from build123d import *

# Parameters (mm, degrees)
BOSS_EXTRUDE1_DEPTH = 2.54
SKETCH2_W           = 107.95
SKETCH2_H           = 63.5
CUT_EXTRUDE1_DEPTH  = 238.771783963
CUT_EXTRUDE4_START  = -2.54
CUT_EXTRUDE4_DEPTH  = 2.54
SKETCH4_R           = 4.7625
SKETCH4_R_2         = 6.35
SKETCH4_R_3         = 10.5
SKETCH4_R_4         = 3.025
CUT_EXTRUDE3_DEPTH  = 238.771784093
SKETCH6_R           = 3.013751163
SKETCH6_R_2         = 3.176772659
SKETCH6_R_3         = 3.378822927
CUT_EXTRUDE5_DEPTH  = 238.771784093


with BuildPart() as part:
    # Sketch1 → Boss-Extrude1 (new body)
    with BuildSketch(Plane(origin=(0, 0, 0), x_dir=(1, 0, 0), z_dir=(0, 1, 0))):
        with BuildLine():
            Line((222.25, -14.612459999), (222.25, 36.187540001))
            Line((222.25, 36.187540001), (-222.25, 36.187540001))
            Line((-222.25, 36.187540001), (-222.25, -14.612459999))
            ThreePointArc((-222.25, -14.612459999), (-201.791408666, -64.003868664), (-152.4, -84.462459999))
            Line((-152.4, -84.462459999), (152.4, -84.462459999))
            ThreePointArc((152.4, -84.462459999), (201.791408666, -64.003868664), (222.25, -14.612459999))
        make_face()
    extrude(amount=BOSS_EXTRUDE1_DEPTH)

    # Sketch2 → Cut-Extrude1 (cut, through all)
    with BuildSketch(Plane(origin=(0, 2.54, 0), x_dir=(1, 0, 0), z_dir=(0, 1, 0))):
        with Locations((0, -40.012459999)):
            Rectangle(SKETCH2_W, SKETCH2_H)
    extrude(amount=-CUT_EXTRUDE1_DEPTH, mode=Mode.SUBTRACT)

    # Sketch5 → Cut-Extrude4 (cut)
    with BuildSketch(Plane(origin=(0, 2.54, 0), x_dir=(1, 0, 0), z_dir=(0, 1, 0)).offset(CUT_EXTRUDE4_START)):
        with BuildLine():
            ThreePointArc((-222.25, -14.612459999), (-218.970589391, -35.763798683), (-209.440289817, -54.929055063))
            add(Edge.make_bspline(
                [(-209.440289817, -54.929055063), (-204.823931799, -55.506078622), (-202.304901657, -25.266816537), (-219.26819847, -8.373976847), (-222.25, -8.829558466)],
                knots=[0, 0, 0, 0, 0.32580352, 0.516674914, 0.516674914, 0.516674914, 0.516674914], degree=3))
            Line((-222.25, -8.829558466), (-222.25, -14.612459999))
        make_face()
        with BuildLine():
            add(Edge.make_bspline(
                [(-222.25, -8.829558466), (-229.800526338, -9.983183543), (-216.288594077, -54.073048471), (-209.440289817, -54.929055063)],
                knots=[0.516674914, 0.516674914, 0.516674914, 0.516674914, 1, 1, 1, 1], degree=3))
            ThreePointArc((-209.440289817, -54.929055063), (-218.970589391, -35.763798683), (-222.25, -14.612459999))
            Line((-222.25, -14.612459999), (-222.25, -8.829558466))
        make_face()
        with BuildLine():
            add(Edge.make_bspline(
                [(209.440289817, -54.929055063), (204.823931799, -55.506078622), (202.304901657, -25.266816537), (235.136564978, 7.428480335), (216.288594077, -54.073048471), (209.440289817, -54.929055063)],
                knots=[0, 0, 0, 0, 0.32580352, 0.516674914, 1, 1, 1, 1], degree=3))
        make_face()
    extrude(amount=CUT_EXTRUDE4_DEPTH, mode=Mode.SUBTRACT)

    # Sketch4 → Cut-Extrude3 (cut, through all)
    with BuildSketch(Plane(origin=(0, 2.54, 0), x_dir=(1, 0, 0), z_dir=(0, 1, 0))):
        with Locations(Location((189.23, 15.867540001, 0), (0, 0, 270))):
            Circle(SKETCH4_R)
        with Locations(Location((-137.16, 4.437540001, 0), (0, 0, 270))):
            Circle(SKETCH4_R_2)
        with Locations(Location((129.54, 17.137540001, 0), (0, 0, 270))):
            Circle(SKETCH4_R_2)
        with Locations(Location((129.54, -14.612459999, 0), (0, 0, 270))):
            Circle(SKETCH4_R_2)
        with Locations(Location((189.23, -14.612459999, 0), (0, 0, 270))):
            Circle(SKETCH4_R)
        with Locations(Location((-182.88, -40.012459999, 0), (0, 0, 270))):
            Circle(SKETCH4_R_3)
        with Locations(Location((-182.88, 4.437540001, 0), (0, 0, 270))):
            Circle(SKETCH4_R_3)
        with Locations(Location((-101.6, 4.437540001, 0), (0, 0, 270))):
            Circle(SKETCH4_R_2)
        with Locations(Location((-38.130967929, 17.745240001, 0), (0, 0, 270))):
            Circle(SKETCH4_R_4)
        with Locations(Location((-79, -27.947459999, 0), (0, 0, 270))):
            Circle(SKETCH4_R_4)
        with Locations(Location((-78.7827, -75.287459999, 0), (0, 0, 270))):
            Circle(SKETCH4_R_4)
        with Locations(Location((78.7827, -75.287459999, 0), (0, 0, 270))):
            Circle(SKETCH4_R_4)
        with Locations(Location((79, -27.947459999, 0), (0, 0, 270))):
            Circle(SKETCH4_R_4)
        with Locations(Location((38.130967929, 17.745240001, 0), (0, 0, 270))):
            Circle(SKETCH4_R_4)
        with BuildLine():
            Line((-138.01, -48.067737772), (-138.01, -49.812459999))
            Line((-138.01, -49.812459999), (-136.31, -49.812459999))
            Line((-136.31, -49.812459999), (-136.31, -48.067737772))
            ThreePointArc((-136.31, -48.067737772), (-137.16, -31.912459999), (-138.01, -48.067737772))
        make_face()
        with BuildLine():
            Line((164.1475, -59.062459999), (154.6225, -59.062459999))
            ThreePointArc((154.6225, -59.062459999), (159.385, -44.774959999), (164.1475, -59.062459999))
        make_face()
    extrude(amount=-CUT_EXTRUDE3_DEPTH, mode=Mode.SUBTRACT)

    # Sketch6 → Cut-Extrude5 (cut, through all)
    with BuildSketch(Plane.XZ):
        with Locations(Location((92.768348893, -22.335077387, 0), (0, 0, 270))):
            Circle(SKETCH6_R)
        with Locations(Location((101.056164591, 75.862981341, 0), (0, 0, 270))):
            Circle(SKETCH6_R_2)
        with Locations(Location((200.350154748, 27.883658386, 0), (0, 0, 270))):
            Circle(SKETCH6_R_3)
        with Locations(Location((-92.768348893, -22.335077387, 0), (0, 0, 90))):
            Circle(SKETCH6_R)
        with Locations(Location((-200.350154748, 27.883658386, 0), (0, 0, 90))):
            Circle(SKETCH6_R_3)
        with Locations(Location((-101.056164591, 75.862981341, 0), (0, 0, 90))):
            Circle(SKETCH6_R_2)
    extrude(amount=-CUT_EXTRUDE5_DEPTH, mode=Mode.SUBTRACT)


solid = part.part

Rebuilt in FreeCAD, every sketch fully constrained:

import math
import FreeCAD as App
import Part
import Sketcher
Q = App.Units.Quantity

doc = App.newDocument("Part")
body = doc.addObject("PartDesign::Body", "Body")

# Sketch on XZ plane
sketch1 = doc.addObject("Sketcher::SketchObject", "Sketch")
body.addObject(sketch1)
sketch1.AttachmentSupport = (doc.XZ_Plane, [""])
sketch1.MapMode = "FlatFace"
sketch1.addGeometry(Part.LineSegment(App.Vector(222.25, 14.61246, 0), App.Vector(222.25, -36.18754, 0)), False)
sketch1.addGeometry(Part.LineSegment(App.Vector(222.25, -36.18754, 0), App.Vector(-222.25, -36.18754, 0)), False)
sketch1.addGeometry(Part.LineSegment(App.Vector(-222.25, -36.18754, 0), App.Vector(-222.25, 14.61246, 0)), False)
sketch1.addGeometry(Part.ArcOfCircle(Part.Circle(App.Vector(-152.4, 14.61246, 0), App.Vector(0, 0, 1), 69.85), math.radians(90), math.radians(180)), False)
sketch1.addGeometry(Part.LineSegment(App.Vector(-152.4, 84.46246, 0), App.Vector(152.4, 84.46246, 0)), False)
sketch1.addGeometry(Part.ArcOfCircle(Part.Circle(App.Vector(152.4, 14.61246, 0), App.Vector(0, 0, 1), 69.85), math.radians(0), math.radians(90)), False)
sketch1.addConstraint(Sketcher.Constraint("Coincident", 0, 2, 1, 1))
sketch1.addConstraint(Sketcher.Constraint("Coincident", 1, 2, 2, 1))
sketch1.addConstraint(Sketcher.Constraint("Tangent", 2, 2, 3, 2))
sketch1.addConstraint(Sketcher.Constraint("Tangent", 3, 1, 4, 1))
sketch1.addConstraint(Sketcher.Constraint("Tangent", 4, 2, 5, 2))
sketch1.addConstraint(Sketcher.Constraint("Tangent", 5, 1, 0, 1))
sketch1.addConstraint(Sketcher.Constraint("Vertical", 0))
sketch1.addConstraint(Sketcher.Constraint("Horizontal", 1))
sketch1.addConstraint(Sketcher.Constraint("Vertical", 2))
sketch1.addConstraint(Sketcher.Constraint("Horizontal", 4))
sketch1.addConstraint(Sketcher.Constraint("Equal", 3, 5))
sketch1.addConstraint(Sketcher.Constraint("DistanceX", 4, 1, 4, 2, Q("12 in")))
sketch1.addConstraint(Sketcher.Constraint("DistanceY", 0, 2, 0, 1, Q("2 in")))
sketch1.addConstraint(Sketcher.Constraint("Radius", 3, Q("2.75 in")))
sketch1.addConstraint(Sketcher.Constraint("DistanceX", 3, 3, -1, 1, Q("6 in")))
sketch1.addConstraint(Sketcher.Constraint("DistanceY", -1, 1, 3, 3, 14.61246))
pad1 = doc.addObject("PartDesign::Pad", "Pad")
body.addObject(pad1)
pad1.Profile = sketch1
pad1.Length = Q("0.1 in")
pad1.Reversed = True

# Sketch on XZ plane
sketch2 = doc.addObject("Sketcher::SketchObject", "Sketch001")
body.addObject(sketch2)
sketch2.AttachmentSupport = (doc.XZ_Plane, [""])
sketch2.MapMode = "FlatFace"
sketch2.AttachmentOffset = App.Placement(App.Vector(0, 0, -0.1 * 25.4), App.Rotation())
sketch2.addGeometry(Part.LineSegment(App.Vector(-53.975, 8.26246, 0), App.Vector(-53.975, 71.76246, 0)), False)
sketch2.addGeometry(Part.LineSegment(App.Vector(-53.975, 71.76246, 0), App.Vector(53.975, 71.76246, 0)), False)
sketch2.addGeometry(Part.LineSegment(App.Vector(53.975, 71.76246, 0), App.Vector(53.975, 8.26246, 0)), False)
sketch2.addGeometry(Part.LineSegment(App.Vector(53.975, 8.26246, 0), App.Vector(-53.975, 8.26246, 0)), False)
sketch2.addConstraint(Sketcher.Constraint("Coincident", 0, 2, 1, 1))
sketch2.addConstraint(Sketcher.Constraint("Coincident", 1, 2, 2, 1))
sketch2.addConstraint(Sketcher.Constraint("Coincident", 2, 2, 3, 1))
sketch2.addConstraint(Sketcher.Constraint("Coincident", 3, 2, 0, 1))
sketch2.addConstraint(Sketcher.Constraint("Vertical", 0))
sketch2.addConstraint(Sketcher.Constraint("Horizontal", 1))
sketch2.addConstraint(Sketcher.Constraint("Vertical", 2))
sketch2.addConstraint(Sketcher.Constraint("Horizontal", 3))
sketch2.addConstraint(Sketcher.Constraint("DistanceY", 0, 1, 0, 2, Q("2.5 in")))
sketch2.addConstraint(Sketcher.Constraint("DistanceX", 1, 1, 1, 2, Q("4.25 in")))
sketch2.addConstraint(Sketcher.Constraint("DistanceX", 0, 2, -1, 1, Q("2.125 in")))
sketch2.addConstraint(Sketcher.Constraint("DistanceY", -1, 1, 0, 2, 71.76246))
pocket1 = doc.addObject("PartDesign::Pocket", "Pocket")
body.addObject(pocket1)
pocket1.Profile = sketch2
pocket1.Type = "ThroughAll"
pocket1.Reversed = True

# Sketch on XZ plane
sketch3 = doc.addObject("Sketcher::SketchObject", "Sketch002")
body.addObject(sketch3)
sketch3.AttachmentSupport = (doc.XZ_Plane, [""])
sketch3.MapMode = "FlatFace"
sketch3.addGeometry(Part.BSplineCurve([App.Vector(-209.44029, 54.929055, 0), App.Vector(-204.823932, 55.506079, 0), App.Vector(-202.304902, 25.266817, 0), App.Vector(-219.268198, 8.373977, 0), App.Vector(-222.25, 8.829558, 0)], [4, 1, 4], [0, 0.32580352, 0.516674914], False, 3, [1, 1, 1, 1, 1], False), False)
sketch3.addGeometry(Part.BSplineCurve([App.Vector(-222.25, 8.829558, 0), App.Vector(-229.800526, 9.983184, 0), App.Vector(-216.288594, 54.073048, 0), App.Vector(-209.44029, 54.929055, 0)], [4, 4], [0.516674914, 1], False, 3, [1, 1, 1, 1], False), False)
sketch3.addGeometry(Part.BSplineCurve([App.Vector(209.44029, 54.929055, 0), App.Vector(204.823932, 55.506079, 0), App.Vector(202.304902, 25.266817, 0), App.Vector(235.136565, -7.42848, 0), App.Vector(216.288594, 54.073048, 0), App.Vector(209.44029, 54.929055, 0)], [4, 1, 1, 4], [0, 0.32580352, 0.516674914, 1], False, 3, [1, 1, 1, 1, 1, 1], False), False)
sketch3.addConstraint(Sketcher.Constraint("Block", 0))
sketch3.addConstraint(Sketcher.Constraint("Block", 1))
sketch3.addConstraint(Sketcher.Constraint("Block", 2))
pocket2 = doc.addObject("PartDesign::Pocket", "Pocket001")
body.addObject(pocket2)
pocket2.Profile = sketch3
pocket2.Length = Q("0.1 in")

# Sketch on XZ plane
sketch4 = doc.addObject("Sketcher::SketchObject", "Sketch003")
body.addObject(sketch4)
sketch4.AttachmentSupport = (doc.XZ_Plane, [""])
sketch4.MapMode = "FlatFace"
sketch4.AttachmentOffset = App.Placement(App.Vector(0, 0, -0.1 * 25.4), App.Rotation())
sketch4.addGeometry(Part.Circle(App.Vector(189.23, -15.86754, 0), App.Vector(0, 0, 1), 4.7625), False)
sketch4.addGeometry(Part.Circle(App.Vector(-137.16, -4.43754, 0), App.Vector(0, 0, 1), 6.35), False)
sketch4.addGeometry(Part.Circle(App.Vector(129.54, -17.13754, 0), App.Vector(0, 0, 1), 6.35), False)
sketch4.addGeometry(Part.Circle(App.Vector(129.54, 14.61246, 0), App.Vector(0, 0, 1), 6.35), False)
sketch4.addGeometry(Part.Circle(App.Vector(189.23, 14.61246, 0), App.Vector(0, 0, 1), 4.7625), False)
sketch4.addGeometry(Part.Circle(App.Vector(-182.88, 40.01246, 0), App.Vector(0, 0, 1), 10.5), False)
sketch4.addGeometry(Part.Circle(App.Vector(-182.88, -4.43754, 0), App.Vector(0, 0, 1), 10.5), False)
sketch4.addGeometry(Part.Circle(App.Vector(-101.6, -4.43754, 0), App.Vector(0, 0, 1), 6.35), False)
sketch4.addGeometry(Part.Circle(App.Vector(-38.130968, -17.74524, 0), App.Vector(0, 0, 1), 3.025), False)
sketch4.addGeometry(Part.Circle(App.Vector(-79, 27.94746, 0), App.Vector(0, 0, 1), 3.025), False)
sketch4.addGeometry(Part.Circle(App.Vector(-78.7827, 75.28746, 0), App.Vector(0, 0, 1), 3.025), False)
sketch4.addGeometry(Part.Circle(App.Vector(78.7827, 75.28746, 0), App.Vector(0, 0, 1), 3.025), False)
sketch4.addGeometry(Part.Circle(App.Vector(79, 27.94746, 0), App.Vector(0, 0, 1), 3.025), False)
sketch4.addGeometry(Part.Circle(App.Vector(38.130968, -17.74524, 0), App.Vector(0, 0, 1), 3.025), False)
sketch4.addGeometry(Part.LineSegment(App.Vector(-138.01, 48.067738, 0), App.Vector(-138.01, 49.81246, 0)), False)
sketch4.addGeometry(Part.LineSegment(App.Vector(-138.01, 49.81246, 0), App.Vector(-136.31, 49.81246, 0)), False)
sketch4.addGeometry(Part.LineSegment(App.Vector(-136.31, 49.81246, 0), App.Vector(-136.31, 48.067738, 0)), False)
sketch4.addGeometry(Part.ArcOfCircle(Part.Circle(App.Vector(-137.16, 40.01246, 0), App.Vector(0, 0, 1), 8.1), math.radians(96.02361), math.radians(443.97639)), False)
sketch4.addGeometry(Part.LineSegment(App.Vector(154.6225, 59.06246, 0), App.Vector(164.1475, 59.06246, 0)), False)
sketch4.addGeometry(Part.ArcOfCircle(Part.Circle(App.Vector(159.385, 52.71246, 0), App.Vector(0, 0, 1), 7.9375), math.radians(126.869898), math.radians(413.130102)), False)
sketch4.addConstraint(Sketcher.Constraint("Coincident", 14, 2, 15, 1))
sketch4.addConstraint(Sketcher.Constraint("Coincident", 15, 2, 16, 1))
sketch4.addConstraint(Sketcher.Constraint("Coincident", 16, 2, 17, 2))
sketch4.addConstraint(Sketcher.Constraint("Coincident", 17, 1, 14, 1))
sketch4.addConstraint(Sketcher.Constraint("Coincident", 18, 1, 19, 1))
sketch4.addConstraint(Sketcher.Constraint("Coincident", 19, 2, 18, 2))
sketch4.addConstraint(Sketcher.Constraint("Vertical", 14))
sketch4.addConstraint(Sketcher.Constraint("Horizontal", 15))
sketch4.addConstraint(Sketcher.Constraint("Vertical", 16))
sketch4.addConstraint(Sketcher.Constraint("Horizontal", 18))
sketch4.addConstraint(Sketcher.Constraint("Equal", 1, 2))
sketch4.addConstraint(Sketcher.Constraint("Equal", 2, 3))
sketch4.addConstraint(Sketcher.Constraint("Equal", 0, 4))
sketch4.addConstraint(Sketcher.Constraint("Equal", 5, 6))
sketch4.addConstraint(Sketcher.Constraint("Equal", 3, 7))
sketch4.addConstraint(Sketcher.Constraint("Equal", 8, 9))
sketch4.addConstraint(Sketcher.Constraint("Equal", 9, 10))
sketch4.addConstraint(Sketcher.Constraint("Equal", 10, 11))
sketch4.addConstraint(Sketcher.Constraint("Equal", 11, 12))
sketch4.addConstraint(Sketcher.Constraint("Equal", 12, 13))
sketch4.addConstraint(Sketcher.Constraint("Symmetric", 10, 3, 11, 3, -2))
sketch4.addConstraint(Sketcher.Constraint("Symmetric", 9, 3, 12, 3, -2))
sketch4.addConstraint(Sketcher.Constraint("Symmetric", 8, 3, 13, 3, -2))
sketch4.addConstraint(Sketcher.Constraint("Horizontal", 3, 3, 4, 3))
sketch4.addConstraint(Sketcher.Constraint("Horizontal", 1, 3, 6, 3))
sketch4.addConstraint(Sketcher.Constraint("Horizontal", 6, 3, 7, 3))
sketch4.addConstraint(Sketcher.Constraint("Horizontal", 5, 3, 17, 3))
sketch4.addConstraint(Sketcher.Constraint("Horizontal", 16, 2, 17, 1))
sketch4.addConstraint(Sketcher.Constraint("Vertical", 2, 3, 3, 3))
sketch4.addConstraint(Sketcher.Constraint("Vertical", 0, 3, 4, 3))
sketch4.addConstraint(Sketcher.Constraint("Vertical", 5, 3, 6, 3))
sketch4.addConstraint(Sketcher.Constraint("Vertical", 1, 3, 17, 3))
sketch4.addConstraint(Sketcher.Constraint("Diameter", 1, Q("0.5 in")))
sketch4.addConstraint(Sketcher.Constraint("Diameter", 0, Q("0.375 in")))
sketch4.addConstraint(Sketcher.Constraint("DistanceX", 7, 3, -1, 1, Q("4 in")))
sketch4.addConstraint(Sketcher.Constraint("Radius", 19, Q("0.3125 in")))
sketch4.addConstraint(Sketcher.Constraint("DistanceY", 3, 3, 5, 3, Q("1 in")))
sketch4.addConstraint(Sketcher.Constraint("DistanceY", 2, 3, 18, 1, Q("3 in")))
sketch4.addConstraint(Sketcher.Constraint("DistanceX", 1, 3, -1, 1, Q("5.4 in")))
sketch4.addConstraint(Sketcher.Constraint("DistanceX", -1, 1, 2, 3, Q("5.1 in")))
sketch4.addConstraint(Sketcher.Constraint("DistanceX", 5, 3, -1, 1, Q("7.2 in")))
sketch4.addConstraint(Sketcher.Constraint("DistanceY", 2, 3, 1, 3, Q("0.5 in")))
sketch4.addConstraint(Sketcher.Constraint("DistanceY", 0, 3, 3, 3, Q("1.2 in")))
sketch4.addConstraint(Sketcher.Constraint("DistanceY", 3, 3, 19, 3, Q("1.5 in")))
sketch4.addConstraint(Sketcher.Constraint("Diameter", 5, 21.0))
sketch4.addConstraint(Sketcher.Constraint("Diameter", 8, 6.05))
sketch4.addConstraint(Sketcher.Constraint("DistanceX", 18, 1, 18, 2, Q("0.375 in")))
sketch4.addConstraint(Sketcher.Constraint("DistanceX", -1, 1, 0, 3, Q("7.45 in")))
sketch4.addConstraint(Sketcher.Constraint("Radius", 17, 8.1))
sketch4.addConstraint(Sketcher.Constraint("DistanceX", -1, 1, 19, 3, Q("6.275 in")))
sketch4.addConstraint(Sketcher.Constraint("DistanceY", 7, 3, 9, 3, Q("1.275 in")))
sketch4.addConstraint(Sketcher.Constraint("DistanceX", 15, 1, 15, 2, 1.7))
sketch4.addConstraint(Sketcher.Constraint("DistanceX", 9, 3, -1, 1, 79.0))
sketch4.addConstraint(Sketcher.Constraint("DistanceX", 10, 3, -1, 1, 78.7827))
sketch4.addConstraint(Sketcher.Constraint("DistanceY", 8, 3, 7, 3, 13.3077))
sketch4.addConstraint(Sketcher.Constraint("DistanceY", 9, 3, 10, 3, 47.34))
sketch4.addConstraint(Sketcher.Constraint("DistanceY", 17, 3, 14, 2, 9.8))
sketch4.addConstraint(Sketcher.Constraint("DistanceY", 0, 3, -1, 1, 15.86754))
sketch4.addConstraint(Sketcher.Constraint("DistanceX", 8, 3, -1, 1, 38.130968))
pocket3 = doc.addObject("PartDesign::Pocket", "Pocket002")
body.addObject(pocket3)
pocket3.Profile = sketch4
pocket3.Type = "ThroughAll"
pocket3.Reversed = True

# Sketch on XZ plane
sketch5 = doc.addObject("Sketcher::SketchObject", "Sketch004")
body.addObject(sketch5)
sketch5.AttachmentSupport = (doc.XZ_Plane, [""])
sketch5.MapMode = "FlatFace"
sketch5.addGeometry(Part.Circle(App.Vector(92.768349, -22.335077, 0), App.Vector(0, 0, 1), 3.013751), False)
sketch5.addGeometry(Part.Circle(App.Vector(101.056165, 75.862981, 0), App.Vector(0, 0, 1), 3.176773), False)
sketch5.addGeometry(Part.Circle(App.Vector(200.350155, 27.883658, 0), App.Vector(0, 0, 1), 3.378823), False)
sketch5.addGeometry(Part.Circle(App.Vector(-92.768349, -22.335077, 0), App.Vector(0, 0, 1), 3.013751), False)
sketch5.addGeometry(Part.Circle(App.Vector(-200.350155, 27.883658, 0), App.Vector(0, 0, 1), 3.378823), False)
sketch5.addGeometry(Part.Circle(App.Vector(-101.056165, 75.862981, 0), App.Vector(0, 0, 1), 3.176773), False)
sketch5.addConstraint(Sketcher.Constraint("Equal", 0, 3))
sketch5.addConstraint(Sketcher.Constraint("Equal", 2, 4))
sketch5.addConstraint(Sketcher.Constraint("Equal", 1, 5))
sketch5.addConstraint(Sketcher.Constraint("Symmetric", 0, 3, 3, 3, -2))
sketch5.addConstraint(Sketcher.Constraint("Symmetric", 2, 3, 4, 3, -2))
sketch5.addConstraint(Sketcher.Constraint("Symmetric", 1, 3, 5, 3, -2))
sketch5.addConstraint(Sketcher.Constraint("Diameter", 0, 6.027502))
sketch5.addConstraint(Sketcher.Constraint("Diameter", 1, 6.353545))
sketch5.addConstraint(Sketcher.Constraint("Diameter", 2, 6.757646))
sketch5.addConstraint(Sketcher.Constraint("DistanceX", -1, 1, 0, 3, 92.768349))
sketch5.addConstraint(Sketcher.Constraint("DistanceY", -1, 1, 1, 3, 75.862981))
sketch5.addConstraint(Sketcher.Constraint("DistanceY", -1, 1, 2, 3, 27.883658))
sketch5.addConstraint(Sketcher.Constraint("DistanceY", 0, 3, 1, 3, 98.198059))
sketch5.addConstraint(Sketcher.Constraint("DistanceX", 1, 3, 2, 3, 99.29399))
sketch5.addConstraint(Sketcher.Constraint("DistanceX", 4, 3, 1, 3, 301.406319))
pocket4 = doc.addObject("PartDesign::Pocket", "Pocket003")
body.addObject(pocket4)
pocket4.Profile = sketch5
pocket4.Type = "ThroughAll"

doc.recompute()
